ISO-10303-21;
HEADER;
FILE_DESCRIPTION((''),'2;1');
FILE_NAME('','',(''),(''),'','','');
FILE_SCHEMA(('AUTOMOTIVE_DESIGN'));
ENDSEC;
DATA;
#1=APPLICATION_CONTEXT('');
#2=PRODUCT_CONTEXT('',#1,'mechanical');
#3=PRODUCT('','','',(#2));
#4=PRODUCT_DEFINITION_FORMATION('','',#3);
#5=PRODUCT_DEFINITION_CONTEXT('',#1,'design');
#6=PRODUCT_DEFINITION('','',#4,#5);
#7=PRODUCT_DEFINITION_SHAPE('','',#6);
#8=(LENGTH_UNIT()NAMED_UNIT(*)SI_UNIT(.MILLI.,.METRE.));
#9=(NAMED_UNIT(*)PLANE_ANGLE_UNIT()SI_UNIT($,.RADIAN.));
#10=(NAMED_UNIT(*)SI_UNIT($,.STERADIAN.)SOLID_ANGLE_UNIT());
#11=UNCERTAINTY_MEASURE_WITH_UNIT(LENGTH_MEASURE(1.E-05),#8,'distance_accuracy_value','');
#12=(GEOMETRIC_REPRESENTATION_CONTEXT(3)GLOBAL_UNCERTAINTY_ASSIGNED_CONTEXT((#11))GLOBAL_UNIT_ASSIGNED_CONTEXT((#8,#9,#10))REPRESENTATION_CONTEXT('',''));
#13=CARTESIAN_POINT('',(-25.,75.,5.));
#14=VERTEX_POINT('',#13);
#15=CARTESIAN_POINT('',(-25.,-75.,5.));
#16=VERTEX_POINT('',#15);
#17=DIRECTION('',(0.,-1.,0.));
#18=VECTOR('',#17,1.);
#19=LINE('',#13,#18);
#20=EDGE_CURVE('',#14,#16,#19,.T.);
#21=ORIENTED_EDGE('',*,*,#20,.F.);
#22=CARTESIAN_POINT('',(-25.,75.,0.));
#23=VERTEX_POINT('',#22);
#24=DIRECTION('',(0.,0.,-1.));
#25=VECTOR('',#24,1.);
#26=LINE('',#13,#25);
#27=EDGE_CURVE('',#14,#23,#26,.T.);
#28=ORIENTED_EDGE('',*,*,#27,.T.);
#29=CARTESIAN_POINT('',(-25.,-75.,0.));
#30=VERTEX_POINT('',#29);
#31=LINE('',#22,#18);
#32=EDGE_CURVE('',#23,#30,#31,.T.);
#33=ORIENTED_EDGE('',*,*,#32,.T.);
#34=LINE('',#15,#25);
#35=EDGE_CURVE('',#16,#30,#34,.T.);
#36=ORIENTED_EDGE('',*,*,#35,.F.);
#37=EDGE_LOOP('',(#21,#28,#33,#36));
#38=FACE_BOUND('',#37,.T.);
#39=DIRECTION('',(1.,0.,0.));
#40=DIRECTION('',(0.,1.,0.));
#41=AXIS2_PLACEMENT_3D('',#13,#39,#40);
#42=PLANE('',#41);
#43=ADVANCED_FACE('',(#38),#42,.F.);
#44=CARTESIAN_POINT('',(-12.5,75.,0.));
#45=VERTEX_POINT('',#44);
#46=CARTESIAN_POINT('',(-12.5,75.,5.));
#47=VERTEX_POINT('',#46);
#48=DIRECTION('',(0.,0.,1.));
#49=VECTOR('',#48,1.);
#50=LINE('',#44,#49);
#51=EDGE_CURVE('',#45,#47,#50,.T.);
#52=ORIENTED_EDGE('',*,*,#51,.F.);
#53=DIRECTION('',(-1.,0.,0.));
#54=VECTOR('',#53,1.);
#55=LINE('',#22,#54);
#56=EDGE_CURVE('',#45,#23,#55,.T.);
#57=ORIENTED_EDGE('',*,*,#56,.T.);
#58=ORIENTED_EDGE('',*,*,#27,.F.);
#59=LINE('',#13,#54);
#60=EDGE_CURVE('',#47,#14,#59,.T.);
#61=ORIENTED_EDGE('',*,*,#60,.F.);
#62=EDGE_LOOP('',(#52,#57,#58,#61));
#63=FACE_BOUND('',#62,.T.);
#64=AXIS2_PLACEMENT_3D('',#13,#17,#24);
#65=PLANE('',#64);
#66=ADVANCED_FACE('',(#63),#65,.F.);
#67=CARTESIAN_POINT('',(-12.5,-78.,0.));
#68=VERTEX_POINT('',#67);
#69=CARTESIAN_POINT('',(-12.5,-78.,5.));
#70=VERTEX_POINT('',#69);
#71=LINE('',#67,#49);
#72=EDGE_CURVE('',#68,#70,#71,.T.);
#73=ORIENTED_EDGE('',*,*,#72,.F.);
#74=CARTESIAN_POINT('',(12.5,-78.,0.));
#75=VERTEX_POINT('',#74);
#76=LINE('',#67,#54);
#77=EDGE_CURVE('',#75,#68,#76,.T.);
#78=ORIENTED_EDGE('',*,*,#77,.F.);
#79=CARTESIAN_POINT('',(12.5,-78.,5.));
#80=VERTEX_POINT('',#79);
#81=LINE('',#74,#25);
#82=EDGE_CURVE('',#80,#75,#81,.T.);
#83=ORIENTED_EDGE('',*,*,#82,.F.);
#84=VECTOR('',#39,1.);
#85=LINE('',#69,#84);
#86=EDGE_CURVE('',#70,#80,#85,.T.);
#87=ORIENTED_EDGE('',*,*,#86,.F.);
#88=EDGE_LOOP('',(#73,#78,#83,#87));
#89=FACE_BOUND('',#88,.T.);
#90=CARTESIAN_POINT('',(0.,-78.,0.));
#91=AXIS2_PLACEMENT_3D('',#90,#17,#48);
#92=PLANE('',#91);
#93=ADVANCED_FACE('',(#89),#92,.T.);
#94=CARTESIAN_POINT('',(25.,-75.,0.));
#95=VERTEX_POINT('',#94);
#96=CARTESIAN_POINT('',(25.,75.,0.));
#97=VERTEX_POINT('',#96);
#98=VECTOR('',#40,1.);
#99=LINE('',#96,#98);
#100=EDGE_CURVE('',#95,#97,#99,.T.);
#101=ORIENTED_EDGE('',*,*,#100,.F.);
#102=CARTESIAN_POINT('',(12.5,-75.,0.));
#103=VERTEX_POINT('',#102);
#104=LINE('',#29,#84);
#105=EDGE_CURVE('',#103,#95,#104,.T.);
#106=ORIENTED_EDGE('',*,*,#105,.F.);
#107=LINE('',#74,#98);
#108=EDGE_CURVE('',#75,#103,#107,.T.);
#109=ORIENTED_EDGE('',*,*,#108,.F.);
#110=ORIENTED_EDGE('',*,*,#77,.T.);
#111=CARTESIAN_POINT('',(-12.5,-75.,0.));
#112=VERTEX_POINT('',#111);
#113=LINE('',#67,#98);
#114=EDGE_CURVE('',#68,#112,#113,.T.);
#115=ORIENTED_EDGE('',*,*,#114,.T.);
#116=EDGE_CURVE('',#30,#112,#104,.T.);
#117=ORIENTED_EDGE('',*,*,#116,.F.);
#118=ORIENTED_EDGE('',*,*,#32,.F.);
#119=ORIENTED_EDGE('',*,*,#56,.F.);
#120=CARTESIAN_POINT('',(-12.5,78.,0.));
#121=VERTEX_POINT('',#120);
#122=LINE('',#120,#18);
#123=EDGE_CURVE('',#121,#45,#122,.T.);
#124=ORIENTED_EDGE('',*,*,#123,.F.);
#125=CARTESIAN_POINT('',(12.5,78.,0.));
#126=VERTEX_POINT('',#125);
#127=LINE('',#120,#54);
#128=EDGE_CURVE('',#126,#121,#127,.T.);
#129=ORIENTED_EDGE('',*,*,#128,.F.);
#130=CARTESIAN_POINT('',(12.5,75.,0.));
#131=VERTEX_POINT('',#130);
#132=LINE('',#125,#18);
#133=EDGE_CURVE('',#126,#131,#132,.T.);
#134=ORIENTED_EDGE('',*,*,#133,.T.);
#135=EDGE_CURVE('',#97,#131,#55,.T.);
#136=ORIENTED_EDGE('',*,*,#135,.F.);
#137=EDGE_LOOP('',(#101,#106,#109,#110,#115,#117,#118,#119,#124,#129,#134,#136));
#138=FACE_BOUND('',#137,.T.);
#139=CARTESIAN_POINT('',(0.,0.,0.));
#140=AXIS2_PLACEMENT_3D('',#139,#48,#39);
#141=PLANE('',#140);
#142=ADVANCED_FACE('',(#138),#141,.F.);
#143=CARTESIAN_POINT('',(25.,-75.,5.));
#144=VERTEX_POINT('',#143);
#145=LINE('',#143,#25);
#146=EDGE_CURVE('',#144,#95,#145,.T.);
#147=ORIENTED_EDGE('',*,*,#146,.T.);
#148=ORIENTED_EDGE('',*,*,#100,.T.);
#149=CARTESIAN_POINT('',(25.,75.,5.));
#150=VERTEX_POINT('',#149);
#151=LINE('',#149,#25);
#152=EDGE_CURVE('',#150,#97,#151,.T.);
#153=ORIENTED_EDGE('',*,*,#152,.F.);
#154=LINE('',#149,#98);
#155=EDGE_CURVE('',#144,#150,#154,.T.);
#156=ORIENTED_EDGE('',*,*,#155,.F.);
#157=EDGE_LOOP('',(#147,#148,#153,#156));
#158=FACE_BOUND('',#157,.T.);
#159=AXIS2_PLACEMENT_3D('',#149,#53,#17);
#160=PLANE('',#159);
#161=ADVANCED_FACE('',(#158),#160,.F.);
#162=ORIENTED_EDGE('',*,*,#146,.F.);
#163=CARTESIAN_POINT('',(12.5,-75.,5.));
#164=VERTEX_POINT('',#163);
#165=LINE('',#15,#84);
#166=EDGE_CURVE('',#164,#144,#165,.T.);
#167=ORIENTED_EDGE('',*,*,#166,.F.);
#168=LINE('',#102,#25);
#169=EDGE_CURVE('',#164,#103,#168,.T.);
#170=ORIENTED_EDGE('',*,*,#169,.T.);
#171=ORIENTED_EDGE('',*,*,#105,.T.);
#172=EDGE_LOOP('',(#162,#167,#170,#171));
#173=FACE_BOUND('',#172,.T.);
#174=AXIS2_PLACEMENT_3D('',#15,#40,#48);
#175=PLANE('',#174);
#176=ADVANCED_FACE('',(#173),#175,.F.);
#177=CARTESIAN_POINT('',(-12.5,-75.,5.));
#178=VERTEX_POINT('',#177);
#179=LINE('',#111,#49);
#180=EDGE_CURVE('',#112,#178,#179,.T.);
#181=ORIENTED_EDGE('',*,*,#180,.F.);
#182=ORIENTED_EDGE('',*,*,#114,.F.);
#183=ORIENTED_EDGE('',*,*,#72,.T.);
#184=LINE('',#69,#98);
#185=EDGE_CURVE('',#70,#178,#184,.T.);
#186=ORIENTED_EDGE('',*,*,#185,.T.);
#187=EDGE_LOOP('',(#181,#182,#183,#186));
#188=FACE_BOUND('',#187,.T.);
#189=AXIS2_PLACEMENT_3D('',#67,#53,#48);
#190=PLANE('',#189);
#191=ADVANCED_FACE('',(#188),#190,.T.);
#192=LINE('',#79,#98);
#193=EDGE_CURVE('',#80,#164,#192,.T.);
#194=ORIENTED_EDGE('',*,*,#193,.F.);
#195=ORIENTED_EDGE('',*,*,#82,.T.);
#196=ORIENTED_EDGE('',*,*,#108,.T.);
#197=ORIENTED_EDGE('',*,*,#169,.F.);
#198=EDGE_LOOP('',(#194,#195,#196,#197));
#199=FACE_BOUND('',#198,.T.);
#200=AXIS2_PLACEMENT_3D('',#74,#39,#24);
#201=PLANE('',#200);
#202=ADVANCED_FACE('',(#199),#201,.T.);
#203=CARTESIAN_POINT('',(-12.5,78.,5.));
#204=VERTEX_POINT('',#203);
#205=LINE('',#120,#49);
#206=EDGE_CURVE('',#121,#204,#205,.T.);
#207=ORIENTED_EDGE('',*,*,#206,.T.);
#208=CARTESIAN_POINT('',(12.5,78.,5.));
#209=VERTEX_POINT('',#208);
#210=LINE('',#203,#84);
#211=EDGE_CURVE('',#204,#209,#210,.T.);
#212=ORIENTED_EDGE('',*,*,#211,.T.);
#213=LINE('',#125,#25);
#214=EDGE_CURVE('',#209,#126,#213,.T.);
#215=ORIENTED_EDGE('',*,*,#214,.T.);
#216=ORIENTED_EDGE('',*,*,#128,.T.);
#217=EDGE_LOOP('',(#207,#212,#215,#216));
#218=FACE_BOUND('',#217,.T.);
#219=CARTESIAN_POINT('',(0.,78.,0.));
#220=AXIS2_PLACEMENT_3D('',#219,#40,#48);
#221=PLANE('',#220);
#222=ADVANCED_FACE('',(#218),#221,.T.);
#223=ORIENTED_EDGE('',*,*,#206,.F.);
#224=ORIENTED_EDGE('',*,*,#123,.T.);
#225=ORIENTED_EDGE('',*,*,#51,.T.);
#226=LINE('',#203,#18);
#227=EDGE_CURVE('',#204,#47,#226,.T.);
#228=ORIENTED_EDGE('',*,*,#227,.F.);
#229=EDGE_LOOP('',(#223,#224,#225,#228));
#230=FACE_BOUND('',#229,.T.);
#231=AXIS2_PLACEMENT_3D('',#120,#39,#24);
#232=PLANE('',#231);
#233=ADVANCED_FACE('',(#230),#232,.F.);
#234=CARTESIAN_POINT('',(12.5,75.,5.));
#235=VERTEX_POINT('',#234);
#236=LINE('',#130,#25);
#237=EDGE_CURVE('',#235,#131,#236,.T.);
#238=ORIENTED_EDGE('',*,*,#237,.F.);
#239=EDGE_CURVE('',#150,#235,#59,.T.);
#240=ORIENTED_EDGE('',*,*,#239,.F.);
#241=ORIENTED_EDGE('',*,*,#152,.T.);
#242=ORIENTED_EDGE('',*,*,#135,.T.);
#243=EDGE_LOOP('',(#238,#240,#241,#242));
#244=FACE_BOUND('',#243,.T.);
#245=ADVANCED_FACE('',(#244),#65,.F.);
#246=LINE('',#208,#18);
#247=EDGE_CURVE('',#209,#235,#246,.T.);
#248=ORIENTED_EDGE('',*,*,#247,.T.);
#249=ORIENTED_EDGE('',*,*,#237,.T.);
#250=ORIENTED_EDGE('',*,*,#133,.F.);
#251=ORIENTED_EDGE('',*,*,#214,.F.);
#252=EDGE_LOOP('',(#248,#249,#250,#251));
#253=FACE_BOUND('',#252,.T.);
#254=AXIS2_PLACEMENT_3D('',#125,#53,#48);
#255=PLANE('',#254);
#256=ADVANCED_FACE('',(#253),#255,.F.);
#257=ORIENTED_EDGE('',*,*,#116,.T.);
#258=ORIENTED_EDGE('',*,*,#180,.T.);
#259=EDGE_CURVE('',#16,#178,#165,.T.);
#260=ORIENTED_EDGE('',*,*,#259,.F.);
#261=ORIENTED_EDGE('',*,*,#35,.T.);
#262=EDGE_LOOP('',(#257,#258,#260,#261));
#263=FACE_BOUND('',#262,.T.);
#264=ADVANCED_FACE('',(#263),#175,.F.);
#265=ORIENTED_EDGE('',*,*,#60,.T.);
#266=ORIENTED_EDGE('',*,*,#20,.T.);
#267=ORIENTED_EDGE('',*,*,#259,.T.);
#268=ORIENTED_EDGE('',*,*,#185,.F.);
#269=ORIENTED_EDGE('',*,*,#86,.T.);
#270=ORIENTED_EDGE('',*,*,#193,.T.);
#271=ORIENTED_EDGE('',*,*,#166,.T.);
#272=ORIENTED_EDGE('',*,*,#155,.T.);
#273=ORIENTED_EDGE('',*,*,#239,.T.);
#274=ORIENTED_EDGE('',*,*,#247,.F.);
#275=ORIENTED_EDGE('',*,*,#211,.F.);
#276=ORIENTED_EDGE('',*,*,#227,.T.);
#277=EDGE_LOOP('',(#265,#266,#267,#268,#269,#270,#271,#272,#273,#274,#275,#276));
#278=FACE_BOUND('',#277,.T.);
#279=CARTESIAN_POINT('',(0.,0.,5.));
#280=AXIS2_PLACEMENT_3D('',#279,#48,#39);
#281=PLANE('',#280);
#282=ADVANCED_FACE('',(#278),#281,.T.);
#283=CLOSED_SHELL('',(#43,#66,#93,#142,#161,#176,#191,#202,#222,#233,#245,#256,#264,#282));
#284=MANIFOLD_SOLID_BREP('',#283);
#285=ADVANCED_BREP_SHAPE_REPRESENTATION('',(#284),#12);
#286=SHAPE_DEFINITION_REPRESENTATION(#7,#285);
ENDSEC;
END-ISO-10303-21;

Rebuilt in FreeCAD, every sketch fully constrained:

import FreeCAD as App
import Part
import Sketcher

V = App.Vector


def add_polygon(sketch, points):
    """Adds a closed chain of lines whose ends are joined by coincident constraints."""
    first, n = sketch.GeometryCount, len(points)
    for a, b in zip(points, points[1:] + points[:1]):
        sketch.addGeometry(Part.LineSegment(App.Vector(*a, 0), App.Vector(*b, 0)), False)
    for i in range(n):
        sketch.addConstraint(Sketcher.Constraint("Coincident", first + i, 2, first + (i + 1) % n, 1))

doc = App.newDocument("Part")
body = doc.addObject("PartDesign::Body", "Body")

sketch1 = body.newObject("Sketcher::SketchObject", "Sketch")
sketch1.AttachmentSupport = (doc.getObject("XY_Plane"), [""])
sketch1.MapMode = "FlatFace"
add_polygon(sketch1, [(-25, 75), (-25, -75), (25, -75), (25, 75)])
sketch1.addConstraint([
    Sketcher.Constraint("Vertical", 0),
    Sketcher.Constraint("Horizontal", 1),
    Sketcher.Constraint("Vertical", 2),
    Sketcher.Constraint("Horizontal", 3),
    Sketcher.Constraint("Symmetric", 0, 2, 2, 2, -1, 1),
    Sketcher.Constraint("DistanceX", 1, 1, 1, 2, 50.0),
    Sketcher.Constraint("DistanceY", 0, 2, 0, 1, 150.0),
])
pad1 = body.newObject("PartDesign::Pad", "Pad")
pad1.Profile = sketch1
pad1.Length = 5

sketch2 = body.newObject("Sketcher::SketchObject", "Sketch001")
sketch2.AttachmentSupport = (doc.getObject("XZ_Plane"), [""])
sketch2.MapMode = "FlatFace"
sketch2.AttachmentOffset = App.Placement(V(0, 0, -75), App.Rotation())
add_polygon(sketch2, [(-12, 0), (-12, 5), (12, 5), (12, 0)])
sketch2.addConstraint([
    Sketcher.Constraint("Vertical", 0),
    Sketcher.Constraint("Horizontal", 1),
    Sketcher.Constraint("Vertical", 2),
    Sketcher.Constraint("Horizontal", 3),
    Sketcher.Constraint("Symmetric", 2, 2, 3, 2, -1, 1),
    Sketcher.Constraint("DistanceX", 1, 1, 1, 2, 25.0),
    Sketcher.Constraint("DistanceY", 0, 1, 0, 2, 5.0),
])
pad2 = body.newObject("PartDesign::Pad", "Pad001")
pad2.Profile = sketch2
pad2.Length = 3
pad2.Reversed = True
doc.recompute()

mirrored = body.newObject("PartDesign::Mirrored", "Mirrored")
mirrored.Originals = [pad2]
mirrored.MirrorPlane = (doc.getObject("XZ_Plane"), [""])
body.Tip = mirrored

doc.recompute()
